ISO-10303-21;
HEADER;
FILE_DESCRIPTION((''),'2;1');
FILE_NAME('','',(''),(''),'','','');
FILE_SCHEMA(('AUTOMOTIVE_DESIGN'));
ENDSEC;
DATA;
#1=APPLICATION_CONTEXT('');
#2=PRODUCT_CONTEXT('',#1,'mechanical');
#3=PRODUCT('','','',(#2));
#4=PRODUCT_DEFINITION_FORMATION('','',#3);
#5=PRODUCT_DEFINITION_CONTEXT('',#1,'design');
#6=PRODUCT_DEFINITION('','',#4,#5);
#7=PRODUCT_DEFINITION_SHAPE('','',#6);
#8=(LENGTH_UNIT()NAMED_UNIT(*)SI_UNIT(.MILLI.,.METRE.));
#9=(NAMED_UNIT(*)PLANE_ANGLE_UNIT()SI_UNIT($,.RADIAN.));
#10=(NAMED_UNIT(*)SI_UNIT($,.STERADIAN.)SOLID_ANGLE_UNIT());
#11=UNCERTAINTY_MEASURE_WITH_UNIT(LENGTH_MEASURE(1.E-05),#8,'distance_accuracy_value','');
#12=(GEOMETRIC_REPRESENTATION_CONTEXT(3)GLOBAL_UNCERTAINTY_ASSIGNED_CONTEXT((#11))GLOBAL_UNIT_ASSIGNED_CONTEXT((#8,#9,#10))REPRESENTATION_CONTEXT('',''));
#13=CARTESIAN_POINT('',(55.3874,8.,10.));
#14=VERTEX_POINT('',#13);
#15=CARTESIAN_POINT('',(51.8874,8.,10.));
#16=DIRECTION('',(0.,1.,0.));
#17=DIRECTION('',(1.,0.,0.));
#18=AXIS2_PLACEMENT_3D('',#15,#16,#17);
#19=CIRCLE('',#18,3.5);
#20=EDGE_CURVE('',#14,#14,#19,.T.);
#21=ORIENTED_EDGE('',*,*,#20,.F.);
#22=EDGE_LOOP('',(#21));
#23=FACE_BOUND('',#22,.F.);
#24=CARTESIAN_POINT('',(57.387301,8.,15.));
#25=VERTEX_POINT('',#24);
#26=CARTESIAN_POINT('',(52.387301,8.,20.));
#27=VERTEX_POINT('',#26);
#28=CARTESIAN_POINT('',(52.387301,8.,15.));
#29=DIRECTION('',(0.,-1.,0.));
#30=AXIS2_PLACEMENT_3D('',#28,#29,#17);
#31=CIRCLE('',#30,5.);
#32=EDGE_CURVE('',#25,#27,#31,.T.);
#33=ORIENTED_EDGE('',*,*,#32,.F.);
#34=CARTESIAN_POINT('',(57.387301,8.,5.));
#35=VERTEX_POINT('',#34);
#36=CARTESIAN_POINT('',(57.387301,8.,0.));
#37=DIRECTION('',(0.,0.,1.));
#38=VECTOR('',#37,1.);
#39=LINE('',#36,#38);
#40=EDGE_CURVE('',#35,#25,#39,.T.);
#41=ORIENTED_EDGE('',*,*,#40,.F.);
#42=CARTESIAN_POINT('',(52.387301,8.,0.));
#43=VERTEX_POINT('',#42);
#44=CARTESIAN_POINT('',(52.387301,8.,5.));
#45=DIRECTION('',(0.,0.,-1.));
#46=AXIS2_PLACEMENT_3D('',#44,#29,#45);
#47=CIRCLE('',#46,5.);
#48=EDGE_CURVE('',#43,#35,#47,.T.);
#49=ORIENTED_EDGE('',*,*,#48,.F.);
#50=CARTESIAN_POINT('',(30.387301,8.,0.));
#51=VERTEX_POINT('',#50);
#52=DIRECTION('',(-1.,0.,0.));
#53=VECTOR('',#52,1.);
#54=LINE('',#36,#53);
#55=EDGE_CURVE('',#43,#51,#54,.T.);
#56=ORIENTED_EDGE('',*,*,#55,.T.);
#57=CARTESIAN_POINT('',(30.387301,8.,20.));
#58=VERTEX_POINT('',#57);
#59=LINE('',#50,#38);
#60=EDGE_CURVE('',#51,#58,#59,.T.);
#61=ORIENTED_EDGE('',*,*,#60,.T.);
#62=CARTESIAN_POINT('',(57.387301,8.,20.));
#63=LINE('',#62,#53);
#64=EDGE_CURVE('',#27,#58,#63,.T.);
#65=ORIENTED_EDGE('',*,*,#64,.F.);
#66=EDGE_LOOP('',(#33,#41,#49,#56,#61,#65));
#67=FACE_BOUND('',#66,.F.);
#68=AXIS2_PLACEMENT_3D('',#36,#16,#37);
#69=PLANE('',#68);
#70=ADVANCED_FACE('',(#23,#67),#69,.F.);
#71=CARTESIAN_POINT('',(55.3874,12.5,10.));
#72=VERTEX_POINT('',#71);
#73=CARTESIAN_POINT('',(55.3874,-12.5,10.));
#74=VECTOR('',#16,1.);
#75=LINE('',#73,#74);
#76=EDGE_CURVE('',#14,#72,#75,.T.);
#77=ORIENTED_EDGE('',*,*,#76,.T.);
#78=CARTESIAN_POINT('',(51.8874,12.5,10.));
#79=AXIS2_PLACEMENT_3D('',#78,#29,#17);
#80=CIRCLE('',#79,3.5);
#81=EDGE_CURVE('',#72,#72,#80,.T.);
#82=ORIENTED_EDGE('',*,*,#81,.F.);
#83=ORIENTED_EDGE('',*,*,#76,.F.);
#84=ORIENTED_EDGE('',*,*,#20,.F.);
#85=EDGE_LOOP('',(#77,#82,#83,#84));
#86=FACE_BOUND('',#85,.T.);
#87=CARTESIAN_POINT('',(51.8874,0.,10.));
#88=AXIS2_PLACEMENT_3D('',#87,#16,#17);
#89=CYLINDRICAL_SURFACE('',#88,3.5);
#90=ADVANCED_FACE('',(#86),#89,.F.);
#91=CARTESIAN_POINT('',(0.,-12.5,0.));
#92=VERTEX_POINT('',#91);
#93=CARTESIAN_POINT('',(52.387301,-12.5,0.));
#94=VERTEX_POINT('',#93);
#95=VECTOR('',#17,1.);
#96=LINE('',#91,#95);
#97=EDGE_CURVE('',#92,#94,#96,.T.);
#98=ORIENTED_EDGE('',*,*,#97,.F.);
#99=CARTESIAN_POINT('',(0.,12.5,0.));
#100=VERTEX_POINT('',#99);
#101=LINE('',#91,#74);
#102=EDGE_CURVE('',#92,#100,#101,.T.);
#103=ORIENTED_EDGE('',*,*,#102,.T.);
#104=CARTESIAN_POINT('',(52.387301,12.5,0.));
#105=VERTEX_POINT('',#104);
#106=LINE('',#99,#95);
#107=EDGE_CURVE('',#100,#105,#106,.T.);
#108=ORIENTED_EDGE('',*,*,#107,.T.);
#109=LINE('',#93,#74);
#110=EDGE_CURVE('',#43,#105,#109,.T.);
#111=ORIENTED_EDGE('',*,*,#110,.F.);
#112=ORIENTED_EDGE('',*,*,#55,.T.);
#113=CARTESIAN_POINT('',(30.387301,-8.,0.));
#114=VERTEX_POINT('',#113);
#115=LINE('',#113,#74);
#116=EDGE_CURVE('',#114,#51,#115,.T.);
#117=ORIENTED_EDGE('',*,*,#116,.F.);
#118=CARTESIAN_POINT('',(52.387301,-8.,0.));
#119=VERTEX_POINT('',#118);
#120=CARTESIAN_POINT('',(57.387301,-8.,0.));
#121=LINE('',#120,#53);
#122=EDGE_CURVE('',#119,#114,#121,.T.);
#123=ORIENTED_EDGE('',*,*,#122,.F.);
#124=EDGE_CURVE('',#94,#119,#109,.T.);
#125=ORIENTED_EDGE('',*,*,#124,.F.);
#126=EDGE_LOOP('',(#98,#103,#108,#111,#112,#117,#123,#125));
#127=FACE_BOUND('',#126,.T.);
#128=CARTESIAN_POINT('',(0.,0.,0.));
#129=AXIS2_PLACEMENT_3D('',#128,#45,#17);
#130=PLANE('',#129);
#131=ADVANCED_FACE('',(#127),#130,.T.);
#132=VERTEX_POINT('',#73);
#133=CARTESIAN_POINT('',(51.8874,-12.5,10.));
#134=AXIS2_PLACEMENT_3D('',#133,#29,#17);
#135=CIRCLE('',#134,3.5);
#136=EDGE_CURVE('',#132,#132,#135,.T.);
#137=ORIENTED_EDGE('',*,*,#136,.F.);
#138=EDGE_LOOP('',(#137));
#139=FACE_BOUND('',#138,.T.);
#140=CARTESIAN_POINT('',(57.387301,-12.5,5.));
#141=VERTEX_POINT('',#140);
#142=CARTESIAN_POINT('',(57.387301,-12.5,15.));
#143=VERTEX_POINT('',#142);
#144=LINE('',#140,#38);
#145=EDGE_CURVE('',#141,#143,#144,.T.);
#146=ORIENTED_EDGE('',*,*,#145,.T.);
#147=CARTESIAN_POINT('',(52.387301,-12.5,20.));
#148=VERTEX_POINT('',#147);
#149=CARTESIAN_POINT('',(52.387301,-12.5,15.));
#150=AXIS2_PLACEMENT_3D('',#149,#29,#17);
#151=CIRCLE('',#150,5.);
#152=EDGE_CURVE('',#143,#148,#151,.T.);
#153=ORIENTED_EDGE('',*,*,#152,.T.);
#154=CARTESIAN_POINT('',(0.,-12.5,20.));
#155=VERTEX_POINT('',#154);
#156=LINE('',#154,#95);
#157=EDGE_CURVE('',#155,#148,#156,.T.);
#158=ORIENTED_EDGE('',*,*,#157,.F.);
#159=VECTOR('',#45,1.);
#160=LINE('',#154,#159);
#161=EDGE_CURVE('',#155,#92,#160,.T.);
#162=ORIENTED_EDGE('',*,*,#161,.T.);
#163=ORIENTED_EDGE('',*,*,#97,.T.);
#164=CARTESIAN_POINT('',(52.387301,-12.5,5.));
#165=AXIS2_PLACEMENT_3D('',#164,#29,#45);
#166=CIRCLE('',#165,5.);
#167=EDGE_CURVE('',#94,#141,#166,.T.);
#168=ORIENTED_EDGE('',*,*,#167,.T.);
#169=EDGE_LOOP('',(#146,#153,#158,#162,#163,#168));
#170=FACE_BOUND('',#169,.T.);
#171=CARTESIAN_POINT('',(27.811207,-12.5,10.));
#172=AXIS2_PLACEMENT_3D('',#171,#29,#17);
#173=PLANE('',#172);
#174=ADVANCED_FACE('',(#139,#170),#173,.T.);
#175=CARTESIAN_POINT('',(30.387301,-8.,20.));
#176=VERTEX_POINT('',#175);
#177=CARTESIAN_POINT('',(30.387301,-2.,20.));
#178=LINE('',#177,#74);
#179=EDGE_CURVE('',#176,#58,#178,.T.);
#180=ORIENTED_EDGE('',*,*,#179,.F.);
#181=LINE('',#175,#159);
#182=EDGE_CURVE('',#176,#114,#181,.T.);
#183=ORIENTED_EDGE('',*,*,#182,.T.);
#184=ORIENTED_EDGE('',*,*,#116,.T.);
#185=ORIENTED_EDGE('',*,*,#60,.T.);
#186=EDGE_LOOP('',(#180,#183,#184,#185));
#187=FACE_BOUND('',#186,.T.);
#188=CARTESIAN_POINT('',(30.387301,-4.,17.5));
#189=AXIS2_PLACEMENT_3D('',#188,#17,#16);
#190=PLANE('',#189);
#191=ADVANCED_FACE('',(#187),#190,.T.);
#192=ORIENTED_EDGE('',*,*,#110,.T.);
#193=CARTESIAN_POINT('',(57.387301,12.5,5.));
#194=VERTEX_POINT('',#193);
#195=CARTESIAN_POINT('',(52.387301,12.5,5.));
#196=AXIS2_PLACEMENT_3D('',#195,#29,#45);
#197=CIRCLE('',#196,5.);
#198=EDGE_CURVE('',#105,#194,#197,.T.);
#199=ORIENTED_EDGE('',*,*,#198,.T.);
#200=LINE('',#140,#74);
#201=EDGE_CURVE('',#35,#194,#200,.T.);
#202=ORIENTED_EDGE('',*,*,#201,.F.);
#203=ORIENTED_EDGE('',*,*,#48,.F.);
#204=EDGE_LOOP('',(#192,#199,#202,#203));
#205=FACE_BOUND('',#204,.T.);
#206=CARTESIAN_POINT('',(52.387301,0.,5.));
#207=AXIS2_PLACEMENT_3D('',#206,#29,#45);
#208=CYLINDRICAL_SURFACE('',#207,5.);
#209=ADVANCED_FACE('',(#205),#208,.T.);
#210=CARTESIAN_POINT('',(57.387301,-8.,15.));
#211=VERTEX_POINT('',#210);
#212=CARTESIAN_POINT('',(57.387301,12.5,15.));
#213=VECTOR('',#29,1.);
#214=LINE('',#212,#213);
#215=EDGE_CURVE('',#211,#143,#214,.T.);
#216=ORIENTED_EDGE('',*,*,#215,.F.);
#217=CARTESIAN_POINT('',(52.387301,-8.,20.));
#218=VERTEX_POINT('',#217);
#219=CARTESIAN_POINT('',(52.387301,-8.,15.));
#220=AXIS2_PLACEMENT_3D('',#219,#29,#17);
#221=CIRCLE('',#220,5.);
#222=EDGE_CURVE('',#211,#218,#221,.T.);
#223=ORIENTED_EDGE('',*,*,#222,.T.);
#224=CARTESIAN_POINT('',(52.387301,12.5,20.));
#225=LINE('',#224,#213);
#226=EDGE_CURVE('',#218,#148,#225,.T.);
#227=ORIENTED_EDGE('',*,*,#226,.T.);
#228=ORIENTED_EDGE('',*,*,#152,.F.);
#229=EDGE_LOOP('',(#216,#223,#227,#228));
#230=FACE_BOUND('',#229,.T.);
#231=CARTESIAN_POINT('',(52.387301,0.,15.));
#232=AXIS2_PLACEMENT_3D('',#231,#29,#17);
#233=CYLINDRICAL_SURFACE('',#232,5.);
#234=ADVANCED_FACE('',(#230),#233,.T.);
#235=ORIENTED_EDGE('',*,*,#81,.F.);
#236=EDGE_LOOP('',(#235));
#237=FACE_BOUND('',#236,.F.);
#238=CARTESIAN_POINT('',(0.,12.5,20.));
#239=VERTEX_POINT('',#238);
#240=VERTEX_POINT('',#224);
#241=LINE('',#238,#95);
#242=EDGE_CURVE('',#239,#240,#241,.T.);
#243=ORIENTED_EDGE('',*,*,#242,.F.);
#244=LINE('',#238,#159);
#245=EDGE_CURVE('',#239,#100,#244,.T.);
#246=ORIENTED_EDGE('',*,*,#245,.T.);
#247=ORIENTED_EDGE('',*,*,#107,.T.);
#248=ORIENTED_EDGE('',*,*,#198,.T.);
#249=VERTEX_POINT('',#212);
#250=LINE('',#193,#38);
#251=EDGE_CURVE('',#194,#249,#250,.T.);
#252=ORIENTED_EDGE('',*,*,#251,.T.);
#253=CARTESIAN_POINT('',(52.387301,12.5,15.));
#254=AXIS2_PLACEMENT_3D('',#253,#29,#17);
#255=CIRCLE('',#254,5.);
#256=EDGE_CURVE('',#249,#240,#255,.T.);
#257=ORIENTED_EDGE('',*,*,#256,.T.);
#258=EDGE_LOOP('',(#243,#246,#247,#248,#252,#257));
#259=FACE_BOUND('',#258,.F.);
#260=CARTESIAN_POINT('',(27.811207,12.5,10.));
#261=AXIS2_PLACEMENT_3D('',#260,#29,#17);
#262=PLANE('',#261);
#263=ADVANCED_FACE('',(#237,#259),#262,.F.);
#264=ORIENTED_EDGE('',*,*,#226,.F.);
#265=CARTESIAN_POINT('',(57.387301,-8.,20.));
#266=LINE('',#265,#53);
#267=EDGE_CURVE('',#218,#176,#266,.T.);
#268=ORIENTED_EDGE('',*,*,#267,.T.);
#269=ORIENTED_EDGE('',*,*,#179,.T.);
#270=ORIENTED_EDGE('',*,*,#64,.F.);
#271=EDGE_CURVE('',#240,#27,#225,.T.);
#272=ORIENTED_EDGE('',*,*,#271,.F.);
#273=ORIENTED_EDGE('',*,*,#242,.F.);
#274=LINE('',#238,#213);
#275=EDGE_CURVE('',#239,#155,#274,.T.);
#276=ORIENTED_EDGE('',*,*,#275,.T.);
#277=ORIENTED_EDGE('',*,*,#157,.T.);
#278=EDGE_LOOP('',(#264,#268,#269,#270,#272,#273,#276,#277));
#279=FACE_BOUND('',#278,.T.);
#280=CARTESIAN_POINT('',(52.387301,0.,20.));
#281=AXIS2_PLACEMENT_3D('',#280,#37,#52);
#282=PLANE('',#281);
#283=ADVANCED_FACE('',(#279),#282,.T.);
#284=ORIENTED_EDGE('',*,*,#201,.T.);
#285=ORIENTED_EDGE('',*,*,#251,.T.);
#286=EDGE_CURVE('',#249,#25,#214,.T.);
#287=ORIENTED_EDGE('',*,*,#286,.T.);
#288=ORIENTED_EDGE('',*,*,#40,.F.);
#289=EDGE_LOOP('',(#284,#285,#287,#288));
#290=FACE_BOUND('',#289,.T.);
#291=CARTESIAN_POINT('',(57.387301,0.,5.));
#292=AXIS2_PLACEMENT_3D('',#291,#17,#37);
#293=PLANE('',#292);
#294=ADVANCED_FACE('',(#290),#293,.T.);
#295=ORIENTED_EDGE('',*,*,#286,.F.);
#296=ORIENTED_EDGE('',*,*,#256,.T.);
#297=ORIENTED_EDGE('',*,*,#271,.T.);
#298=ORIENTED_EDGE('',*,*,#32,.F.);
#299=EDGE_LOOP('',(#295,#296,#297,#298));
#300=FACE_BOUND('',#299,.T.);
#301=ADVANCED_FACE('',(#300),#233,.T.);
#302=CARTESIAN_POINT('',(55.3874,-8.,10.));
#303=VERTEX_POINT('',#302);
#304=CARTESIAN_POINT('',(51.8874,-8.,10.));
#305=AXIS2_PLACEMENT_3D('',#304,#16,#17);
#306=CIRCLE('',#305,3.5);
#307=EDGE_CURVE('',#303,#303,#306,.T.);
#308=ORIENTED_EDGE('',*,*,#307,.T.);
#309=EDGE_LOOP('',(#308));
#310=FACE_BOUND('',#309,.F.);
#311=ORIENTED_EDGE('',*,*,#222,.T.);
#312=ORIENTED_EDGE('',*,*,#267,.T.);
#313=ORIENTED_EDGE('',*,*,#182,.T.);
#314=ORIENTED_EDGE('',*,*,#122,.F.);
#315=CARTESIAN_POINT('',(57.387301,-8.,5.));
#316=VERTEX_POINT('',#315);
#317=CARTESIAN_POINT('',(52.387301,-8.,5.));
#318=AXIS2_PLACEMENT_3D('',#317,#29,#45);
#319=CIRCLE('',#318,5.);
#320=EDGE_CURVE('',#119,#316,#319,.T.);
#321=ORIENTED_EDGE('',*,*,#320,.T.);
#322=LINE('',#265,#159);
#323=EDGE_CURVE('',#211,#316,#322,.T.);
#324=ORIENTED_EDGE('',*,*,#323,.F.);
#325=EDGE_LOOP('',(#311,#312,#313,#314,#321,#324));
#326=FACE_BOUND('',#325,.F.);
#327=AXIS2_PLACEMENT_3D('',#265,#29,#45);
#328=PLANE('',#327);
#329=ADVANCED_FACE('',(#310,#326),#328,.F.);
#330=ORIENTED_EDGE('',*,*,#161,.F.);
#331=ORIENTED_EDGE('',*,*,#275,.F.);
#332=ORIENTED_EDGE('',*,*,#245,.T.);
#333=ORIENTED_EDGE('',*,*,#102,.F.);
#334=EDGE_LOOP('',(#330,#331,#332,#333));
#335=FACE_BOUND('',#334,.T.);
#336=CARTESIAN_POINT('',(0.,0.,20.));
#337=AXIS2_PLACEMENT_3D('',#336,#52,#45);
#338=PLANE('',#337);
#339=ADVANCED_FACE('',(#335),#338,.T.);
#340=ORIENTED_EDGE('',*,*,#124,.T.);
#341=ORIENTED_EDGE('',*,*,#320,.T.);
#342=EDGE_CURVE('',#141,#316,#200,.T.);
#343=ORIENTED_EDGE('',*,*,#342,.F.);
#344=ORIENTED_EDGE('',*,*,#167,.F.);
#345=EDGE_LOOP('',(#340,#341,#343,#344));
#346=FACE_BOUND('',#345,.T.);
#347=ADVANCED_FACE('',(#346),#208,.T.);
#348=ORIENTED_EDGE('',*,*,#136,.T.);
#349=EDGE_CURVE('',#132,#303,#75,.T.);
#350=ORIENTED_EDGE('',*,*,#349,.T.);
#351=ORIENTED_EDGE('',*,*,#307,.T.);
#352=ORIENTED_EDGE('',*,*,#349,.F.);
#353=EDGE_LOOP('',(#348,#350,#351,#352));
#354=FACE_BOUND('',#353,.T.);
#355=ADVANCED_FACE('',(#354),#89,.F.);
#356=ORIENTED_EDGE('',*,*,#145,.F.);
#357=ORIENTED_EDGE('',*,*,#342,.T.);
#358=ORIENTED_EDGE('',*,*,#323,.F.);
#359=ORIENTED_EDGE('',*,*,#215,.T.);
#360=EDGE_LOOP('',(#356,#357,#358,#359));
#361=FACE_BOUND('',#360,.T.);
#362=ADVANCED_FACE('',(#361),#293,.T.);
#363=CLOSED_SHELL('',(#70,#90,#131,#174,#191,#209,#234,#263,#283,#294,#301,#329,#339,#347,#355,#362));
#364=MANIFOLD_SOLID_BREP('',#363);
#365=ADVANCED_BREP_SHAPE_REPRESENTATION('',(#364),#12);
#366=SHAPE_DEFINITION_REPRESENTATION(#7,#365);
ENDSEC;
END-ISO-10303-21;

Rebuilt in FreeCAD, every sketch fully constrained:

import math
import FreeCAD as App
import Part
import Sketcher


def add_polygon(sketch, points):
    """Adds a closed chain of lines whose ends are joined by coincident constraints."""
    first, n = sketch.GeometryCount, len(points)
    for a, b in zip(points, points[1:] + points[:1]):
        sketch.addGeometry(Part.LineSegment(App.Vector(*a, 0), App.Vector(*b, 0)), False)
    for i in range(n):
        sketch.addConstraint(Sketcher.Constraint("Coincident", first + i, 2, first + (i + 1) % n, 1))

doc = App.newDocument("Part")
body = doc.addObject("PartDesign::Body", "Body")

sketch1 = body.newObject("Sketcher::SketchObject", "Sketch")
sketch1.AttachmentSupport = (doc.getObject("XZ_Plane"), [""])
sketch1.MapMode = "FlatFace"
sketch1.addGeometry([
    Part.LineSegment(App.Vector(57.4, 5, 0), App.Vector(57.4, 15, 0)),
    Part.ArcOfCircle(Part.Circle(App.Vector(52.4, 15, 0), App.Vector(0, 0, 1), 5), math.radians(0), math.radians(90)),
    Part.LineSegment(App.Vector(52.4, 20, 0), App.Vector(0, 20, 0)),
    Part.LineSegment(App.Vector(0, 20, 0), App.Vector(0, 0, 0)),
    Part.LineSegment(App.Vector(0, 0, 0), App.Vector(52.4, 0, 0)),
    Part.ArcOfCircle(Part.Circle(App.Vector(52.4, 5, 0), App.Vector(0, 0, 1), 5), math.radians(-90), math.radians(0)),
    Part.Circle(App.Vector(51.9, 10, 0), App.Vector(0, 0, 1), 3.5),
], False)
sketch1.addConstraint([
    Sketcher.Constraint("Tangent", 0, 2, 1, 1),
    Sketcher.Constraint("Tangent", 1, 2, 2, 1),
    Sketcher.Constraint("Coincident", 2, 2, 3, 1),
    Sketcher.Constraint("Coincident", 3, 2, 4, 1),
    Sketcher.Constraint("Tangent", 4, 2, 5, 1),
    Sketcher.Constraint("Tangent", 5, 2, 0, 1),
    Sketcher.Constraint("Vertical", 0),
    Sketcher.Constraint("Horizontal", 2),
    Sketcher.Constraint("Vertical", 3),
    Sketcher.Constraint("Horizontal", 4),
    Sketcher.Constraint("Coincident", 3, 2, -1, 1),
    Sketcher.Constraint("Equal", 1, 5),
    Sketcher.Constraint("Diameter", 6, 7.0),
    Sketcher.Constraint("Radius", 1, 5.0),
    Sketcher.Constraint("DistanceY", 0, 1, 0, 2, 10.0),
    Sketcher.Constraint("DistanceY", -1, 1, 6, 3, 10.0),
    Sketcher.Constraint("DistanceX", 2, 2, 2, 1, 52.387301),
    Sketcher.Constraint("DistanceX", -1, 1, 6, 3, 51.8874),
])
pad1 = body.newObject("PartDesign::Pad", "Pad")
pad1.Profile = sketch1
pad1.Length = 25
pad1.Midplane = True

sketch2 = body.newObject("Sketcher::SketchObject", "Sketch001")
sketch2.AttachmentSupport = (doc.getObject("YZ_Plane"), [""])
sketch2.MapMode = "FlatFace"
sketch2.AttachmentOffset = App.Placement(App.Vector(0, 0, 57.387301), App.Rotation())
add_polygon(sketch2, [(-8, 20), (-8, 0), (8, 0), (8, 20), (12.5, 20), (0, 21.5), (-12.5, 21.5), (-12.5, 20)])
sketch2.addConstraint([
    Sketcher.Constraint("Vertical", 0),
    Sketcher.Constraint("Horizontal", 1),
    Sketcher.Constraint("Vertical", 2),
    Sketcher.Constraint("Horizontal", 3),
    Sketcher.Constraint("Horizontal", 5),
    Sketcher.Constraint("Vertical", 6),
    Sketcher.Constraint("Horizontal", 7),
    Sketcher.Constraint("Symmetric", 0, 2, 1, 2, -1, 1),
    Sketcher.Constraint("Symmetric", 3, 2, 6, 2, -2),
    Sketcher.Constraint("PointOnObject", 4, 2, -2),
    Sketcher.Constraint("DistanceX", 1, 1, 1, 2, 16.0),
    Sketcher.Constraint("DistanceY", 0, 2, 0, 1, 20.0),
    Sketcher.Constraint("DistanceX", 3, 1, 3, 2, 4.5),
    Sketcher.Constraint("DistanceY", 6, 2, 6, 1, 1.479795),
])
pocket1 = body.newObject("PartDesign::Pocket", "Pocket")
pocket1.Profile = sketch2
pocket1.Length = 27

doc.recompute()
